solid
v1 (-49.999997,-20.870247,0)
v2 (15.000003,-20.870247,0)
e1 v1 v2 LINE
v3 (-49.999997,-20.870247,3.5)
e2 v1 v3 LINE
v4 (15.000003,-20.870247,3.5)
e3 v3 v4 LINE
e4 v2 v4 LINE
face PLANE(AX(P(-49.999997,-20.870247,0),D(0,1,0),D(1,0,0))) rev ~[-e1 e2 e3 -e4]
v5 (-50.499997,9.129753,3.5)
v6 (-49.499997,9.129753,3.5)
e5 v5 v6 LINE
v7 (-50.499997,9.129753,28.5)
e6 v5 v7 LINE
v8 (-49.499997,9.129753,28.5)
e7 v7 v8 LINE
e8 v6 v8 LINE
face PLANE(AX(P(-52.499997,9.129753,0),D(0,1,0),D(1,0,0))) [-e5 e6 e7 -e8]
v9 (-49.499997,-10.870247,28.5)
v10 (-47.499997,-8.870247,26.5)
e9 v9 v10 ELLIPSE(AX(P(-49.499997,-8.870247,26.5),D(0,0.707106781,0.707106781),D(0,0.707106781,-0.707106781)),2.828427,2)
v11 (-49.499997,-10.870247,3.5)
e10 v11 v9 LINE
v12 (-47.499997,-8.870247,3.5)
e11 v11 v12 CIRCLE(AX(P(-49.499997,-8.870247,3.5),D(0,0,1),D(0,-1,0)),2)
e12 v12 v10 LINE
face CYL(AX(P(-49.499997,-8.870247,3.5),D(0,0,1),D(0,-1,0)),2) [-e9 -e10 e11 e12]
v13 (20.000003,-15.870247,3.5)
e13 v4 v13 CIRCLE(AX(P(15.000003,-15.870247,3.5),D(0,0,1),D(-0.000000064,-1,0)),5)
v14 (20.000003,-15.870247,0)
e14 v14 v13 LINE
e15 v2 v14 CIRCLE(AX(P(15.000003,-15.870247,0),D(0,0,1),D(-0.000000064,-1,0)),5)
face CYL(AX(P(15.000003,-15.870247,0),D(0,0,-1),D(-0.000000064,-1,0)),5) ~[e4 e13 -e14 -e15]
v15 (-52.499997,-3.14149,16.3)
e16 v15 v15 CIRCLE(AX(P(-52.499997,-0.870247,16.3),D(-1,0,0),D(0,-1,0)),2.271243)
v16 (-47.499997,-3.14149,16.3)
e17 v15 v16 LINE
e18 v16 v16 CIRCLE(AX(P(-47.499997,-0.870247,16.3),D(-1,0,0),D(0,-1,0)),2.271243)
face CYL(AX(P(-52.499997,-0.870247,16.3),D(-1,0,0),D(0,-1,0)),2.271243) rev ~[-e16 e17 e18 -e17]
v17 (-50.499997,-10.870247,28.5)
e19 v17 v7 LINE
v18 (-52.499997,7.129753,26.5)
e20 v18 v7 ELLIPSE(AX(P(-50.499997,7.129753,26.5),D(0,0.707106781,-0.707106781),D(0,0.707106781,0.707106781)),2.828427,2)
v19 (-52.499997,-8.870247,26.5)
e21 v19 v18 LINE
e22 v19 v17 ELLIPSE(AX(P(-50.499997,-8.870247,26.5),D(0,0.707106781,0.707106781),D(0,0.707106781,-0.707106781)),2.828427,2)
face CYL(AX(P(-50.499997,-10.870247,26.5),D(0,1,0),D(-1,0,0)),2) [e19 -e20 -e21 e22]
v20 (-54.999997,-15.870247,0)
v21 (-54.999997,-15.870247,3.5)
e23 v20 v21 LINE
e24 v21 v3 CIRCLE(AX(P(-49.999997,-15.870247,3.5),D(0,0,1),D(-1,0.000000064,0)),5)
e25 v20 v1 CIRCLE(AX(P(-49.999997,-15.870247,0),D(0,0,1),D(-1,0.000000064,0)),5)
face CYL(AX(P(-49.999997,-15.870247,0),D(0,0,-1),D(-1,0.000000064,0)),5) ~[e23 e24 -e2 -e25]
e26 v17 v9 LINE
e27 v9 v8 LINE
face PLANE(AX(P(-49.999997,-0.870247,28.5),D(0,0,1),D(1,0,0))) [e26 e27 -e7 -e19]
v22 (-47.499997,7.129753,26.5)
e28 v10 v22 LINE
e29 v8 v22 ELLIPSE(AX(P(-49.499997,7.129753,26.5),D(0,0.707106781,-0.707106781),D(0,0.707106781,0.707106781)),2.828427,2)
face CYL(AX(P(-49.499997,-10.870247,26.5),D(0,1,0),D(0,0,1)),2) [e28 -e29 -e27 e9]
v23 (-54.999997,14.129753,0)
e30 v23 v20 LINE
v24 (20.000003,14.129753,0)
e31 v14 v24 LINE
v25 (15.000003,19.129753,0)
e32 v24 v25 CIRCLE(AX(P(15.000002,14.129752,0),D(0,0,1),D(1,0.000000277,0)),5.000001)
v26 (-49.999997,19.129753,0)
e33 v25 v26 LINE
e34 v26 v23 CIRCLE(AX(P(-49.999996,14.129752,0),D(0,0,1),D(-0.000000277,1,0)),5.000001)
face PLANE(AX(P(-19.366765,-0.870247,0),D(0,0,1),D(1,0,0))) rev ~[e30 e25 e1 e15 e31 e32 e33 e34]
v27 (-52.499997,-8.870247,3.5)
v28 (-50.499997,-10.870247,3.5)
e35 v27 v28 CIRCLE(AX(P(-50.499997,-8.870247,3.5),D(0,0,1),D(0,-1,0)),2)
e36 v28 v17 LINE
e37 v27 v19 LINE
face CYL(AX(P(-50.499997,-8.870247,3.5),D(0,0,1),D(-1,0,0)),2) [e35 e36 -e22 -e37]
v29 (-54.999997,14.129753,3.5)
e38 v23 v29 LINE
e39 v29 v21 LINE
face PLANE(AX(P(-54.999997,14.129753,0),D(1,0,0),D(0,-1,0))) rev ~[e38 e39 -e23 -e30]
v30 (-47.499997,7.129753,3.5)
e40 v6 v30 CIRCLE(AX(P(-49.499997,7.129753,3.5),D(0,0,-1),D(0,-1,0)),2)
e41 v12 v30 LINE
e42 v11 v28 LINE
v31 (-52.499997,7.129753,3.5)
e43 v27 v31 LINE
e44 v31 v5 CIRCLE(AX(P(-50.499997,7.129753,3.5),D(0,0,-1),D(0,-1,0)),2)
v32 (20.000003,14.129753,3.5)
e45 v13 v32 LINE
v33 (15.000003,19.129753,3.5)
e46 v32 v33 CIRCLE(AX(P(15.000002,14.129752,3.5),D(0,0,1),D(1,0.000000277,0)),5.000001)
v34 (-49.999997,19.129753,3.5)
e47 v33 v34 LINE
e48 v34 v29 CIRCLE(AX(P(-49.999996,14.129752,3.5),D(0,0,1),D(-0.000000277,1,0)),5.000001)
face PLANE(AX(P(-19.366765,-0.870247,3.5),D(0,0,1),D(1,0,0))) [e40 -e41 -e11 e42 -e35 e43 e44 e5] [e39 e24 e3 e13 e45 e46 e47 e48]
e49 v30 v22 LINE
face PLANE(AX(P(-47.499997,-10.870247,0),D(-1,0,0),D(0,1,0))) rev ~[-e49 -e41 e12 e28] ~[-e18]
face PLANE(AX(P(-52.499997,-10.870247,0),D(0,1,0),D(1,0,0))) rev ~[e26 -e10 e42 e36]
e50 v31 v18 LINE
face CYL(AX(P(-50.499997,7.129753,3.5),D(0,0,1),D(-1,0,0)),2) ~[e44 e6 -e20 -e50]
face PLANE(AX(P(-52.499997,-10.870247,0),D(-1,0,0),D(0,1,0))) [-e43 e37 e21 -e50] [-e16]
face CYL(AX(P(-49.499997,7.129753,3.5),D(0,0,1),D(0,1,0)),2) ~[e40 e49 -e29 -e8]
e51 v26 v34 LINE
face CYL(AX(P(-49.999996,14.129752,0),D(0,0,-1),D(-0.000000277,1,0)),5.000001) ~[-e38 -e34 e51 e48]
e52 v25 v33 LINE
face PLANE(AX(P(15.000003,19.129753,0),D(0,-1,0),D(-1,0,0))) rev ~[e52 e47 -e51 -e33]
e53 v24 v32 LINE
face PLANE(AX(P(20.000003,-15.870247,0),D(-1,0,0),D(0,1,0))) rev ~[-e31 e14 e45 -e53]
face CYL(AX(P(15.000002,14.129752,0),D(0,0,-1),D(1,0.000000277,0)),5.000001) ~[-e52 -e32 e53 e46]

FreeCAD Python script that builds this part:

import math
import FreeCAD as App
import Part
import Sketcher
from FreeCAD import Vector


def edges_at(feature, points):
    """Names of the edges that pass closest to the given points."""
    edges = feature.Shape.Edges
    near = lambda p: min(range(len(edges)), key=lambda i: edges[i].distToShape(Part.Vertex(*p))[0])
    return sorted({f"Edge{near(p) + 1}" for p in points})


def add_polygon(sketch, points):
    """Adds a closed chain of lines whose ends are joined by coincident constraints."""
    first, n = sketch.GeometryCount, len(points)
    for a, b in zip(points, points[1:] + points[:1]):
        sketch.addGeometry(Part.LineSegment(App.Vector(*a, 0), App.Vector(*b, 0)), False)
    for i in range(n):
        sketch.addConstraint(Sketcher.Constraint("Coincident", first + i, 2, first + (i + 1) % n, 1))

doc = App.newDocument("Part")
body = doc.addObject("PartDesign::Body", "Body")

sketch1 = doc.addObject("Sketcher::SketchObject", "Sketch")
body.addObject(sketch1)
sketch1.AttachmentSupport = (doc.XY_Plane, [""])
sketch1.MapMode = "FlatFace"
sketch1.addGeometry(Part.LineSegment(Vector(15, 19.1, 0), Vector(-50, 19.1, 0)), False)
sketch1.addGeometry(Part.ArcOfCircle(Part.Circle(Vector(-50, 14.1, 0), Vector(0, 0, 1), 5), math.radians(90), math.radians(180)), False)
sketch1.addGeometry(Part.LineSegment(Vector(-55, 14.1, 0), Vector(-55, -15.9, 0)), False)
sketch1.addGeometry(Part.ArcOfCircle(Part.Circle(Vector(-50, -15.9, 0), Vector(0, 0, 1), 5), math.radians(180), math.radians(270)), False)
sketch1.addGeometry(Part.LineSegment(Vector(-50, -20.9, 0), Vector(15, -20.9, 0)), False)
sketch1.addGeometry(Part.ArcOfCircle(Part.Circle(Vector(15, -15.9, 0), Vector(0, 0, 1), 5), math.radians(-90), math.radians(0)), False)
sketch1.addGeometry(Part.LineSegment(Vector(20, -15.9, 0), Vector(20, 14.1, 0)), False)
sketch1.addGeometry(Part.ArcOfCircle(Part.Circle(Vector(15, 14.1, 0), Vector(0, 0, 1), 5), math.radians(0), math.radians(90)), False)
add_polygon(sketch1, [(-52.5, 9.1), (-47.5, 9.1), (-47.5, -10.9), (-52.5, -10.9)])
sketch1.addConstraint(Sketcher.Constraint("Tangent", 0, 2, 1, 1))
sketch1.addConstraint(Sketcher.Constraint("Tangent", 1, 2, 2, 1))
sketch1.addConstraint(Sketcher.Constraint("Tangent", 2, 2, 3, 1))
sketch1.addConstraint(Sketcher.Constraint("Tangent", 3, 2, 4, 1))
sketch1.addConstraint(Sketcher.Constraint("Tangent", 4, 2, 5, 1))
sketch1.addConstraint(Sketcher.Constraint("Tangent", 5, 2, 6, 1))
sketch1.addConstraint(Sketcher.Constraint("Tangent", 6, 2, 7, 1))
sketch1.addConstraint(Sketcher.Constraint("Tangent", 7, 2, 0, 1))
sketch1.addConstraint(Sketcher.Constraint("Horizontal", 0))
sketch1.addConstraint(Sketcher.Constraint("Vertical", 2))
sketch1.addConstraint(Sketcher.Constraint("Horizontal", 4))
sketch1.addConstraint(Sketcher.Constraint("Vertical", 6))
sketch1.addConstraint(Sketcher.Constraint("Horizontal", 8))
sketch1.addConstraint(Sketcher.Constraint("Vertical", 9))
sketch1.addConstraint(Sketcher.Constraint("Horizontal", 10))
sketch1.addConstraint(Sketcher.Constraint("Vertical", 11))
sketch1.addConstraint(Sketcher.Constraint("Equal", 1, 3))
sketch1.addConstraint(Sketcher.Constraint("Equal", 3, 5))
sketch1.addConstraint(Sketcher.Constraint("Equal", 5, 7))
sketch1.addConstraint(Sketcher.Constraint("Radius", 1, 5.000001))
sketch1.addConstraint(Sketcher.Constraint("DistanceX", 0, 2, 0, 1, 65.0))
sketch1.addConstraint(Sketcher.Constraint("DistanceX", 8, 1, 8, 2, 5.0))
sketch1.addConstraint(Sketcher.Constraint("DistanceY", 2, 2, 2, 1, 30.0))
sketch1.addConstraint(Sketcher.Constraint("DistanceY", 9, 2, 9, 1, 20.0))
sketch1.addConstraint(Sketcher.Constraint("DistanceX", -1, 1, 7, 3, 15.000002))
sketch1.addConstraint(Sketcher.Constraint("DistanceY", 8, 2, 1, 3, 4.999999))
sketch1.addConstraint(Sketcher.Constraint("DistanceX", 1, 3, 8, 2, 2.499999))
sketch1.addConstraint(Sketcher.Constraint("DistanceY", -1, 1, 1, 3, 14.129752))
pad1 = doc.addObject("PartDesign::Pad", "Pad")
body.addObject(pad1)
pad1.Profile = sketch1
pad1.Length = 3.5

sketch2 = doc.addObject("Sketcher::SketchObject", "Sketch001")
body.addObject(sketch2)
sketch2.AttachmentSupport = (doc.XY_Plane, [""])
sketch2.MapMode = "FlatFace"
add_polygon(sketch2, [(-52, 9), (-52, -11), (-47, -11), (-47, 9)])
sketch2.addConstraint(Sketcher.Constraint("Vertical", 0))
sketch2.addConstraint(Sketcher.Constraint("Horizontal", 1))
sketch2.addConstraint(Sketcher.Constraint("Vertical", 2))
sketch2.addConstraint(Sketcher.Constraint("Horizontal", 3))
sketch2.addConstraint(Sketcher.Constraint("DistanceX", 1, 1, 1, 2, 5.0))
sketch2.addConstraint(Sketcher.Constraint("DistanceY", 0, 2, 0, 1, 20.0))
sketch2.addConstraint(Sketcher.Constraint("DistanceX", 0, 2, -1, 1, 52.499997))
sketch2.addConstraint(Sketcher.Constraint("DistanceY", 0, 2, -1, 1, 10.870247))
pad2 = doc.addObject("PartDesign::Pad", "Pad001")
body.addObject(pad2)
pad2.Profile = sketch2
pad2.Length = 28.5

sketch3 = doc.addObject("Sketcher::SketchObject", "Sketch002")
body.addObject(sketch3)
sketch3.AttachmentSupport = (doc.YZ_Plane, [""])
sketch3.MapMode = "FlatFace"
sketch3.AttachmentOffset = App.Placement(Vector(0, 0, -52.499997), App.Rotation())
sketch3.addGeometry(Part.Circle(Vector(-0.9, 16.3, 0), Vector(0, 0, 1), 2.3), False)
sketch3.addConstraint(Sketcher.Constraint("DistanceY", -1, 1, 0, 3, 16.3))
sketch3.addConstraint(Sketcher.Constraint("Diameter", 0, 4.542486))
sketch3.addConstraint(Sketcher.Constraint("DistanceX", 0, 3, -1, 1, 0.870247))
pocket1 = doc.addObject("PartDesign::Pocket", "Pocket")
body.addObject(pocket1)
pocket1.Profile = sketch3
pocket1.Length = 5
pocket1.Reversed = True
doc.recompute()

fillet = doc.addObject("PartDesign::Fillet", "Fillet")
body.addObject(fillet)
fillet.Base = (pocket1, edges_at(pocket1, [
    (-52.5, -0.87, 28.5),
    (-47.5, -0.87, 28.5),
    (-47.5, -10.87, 16),
    (-52.5, -10.87, 16),
    (-52.5, 9.13, 16),
    (-47.5, 9.13, 16),
]))
fillet.Radius = 2

doc.recompute()
